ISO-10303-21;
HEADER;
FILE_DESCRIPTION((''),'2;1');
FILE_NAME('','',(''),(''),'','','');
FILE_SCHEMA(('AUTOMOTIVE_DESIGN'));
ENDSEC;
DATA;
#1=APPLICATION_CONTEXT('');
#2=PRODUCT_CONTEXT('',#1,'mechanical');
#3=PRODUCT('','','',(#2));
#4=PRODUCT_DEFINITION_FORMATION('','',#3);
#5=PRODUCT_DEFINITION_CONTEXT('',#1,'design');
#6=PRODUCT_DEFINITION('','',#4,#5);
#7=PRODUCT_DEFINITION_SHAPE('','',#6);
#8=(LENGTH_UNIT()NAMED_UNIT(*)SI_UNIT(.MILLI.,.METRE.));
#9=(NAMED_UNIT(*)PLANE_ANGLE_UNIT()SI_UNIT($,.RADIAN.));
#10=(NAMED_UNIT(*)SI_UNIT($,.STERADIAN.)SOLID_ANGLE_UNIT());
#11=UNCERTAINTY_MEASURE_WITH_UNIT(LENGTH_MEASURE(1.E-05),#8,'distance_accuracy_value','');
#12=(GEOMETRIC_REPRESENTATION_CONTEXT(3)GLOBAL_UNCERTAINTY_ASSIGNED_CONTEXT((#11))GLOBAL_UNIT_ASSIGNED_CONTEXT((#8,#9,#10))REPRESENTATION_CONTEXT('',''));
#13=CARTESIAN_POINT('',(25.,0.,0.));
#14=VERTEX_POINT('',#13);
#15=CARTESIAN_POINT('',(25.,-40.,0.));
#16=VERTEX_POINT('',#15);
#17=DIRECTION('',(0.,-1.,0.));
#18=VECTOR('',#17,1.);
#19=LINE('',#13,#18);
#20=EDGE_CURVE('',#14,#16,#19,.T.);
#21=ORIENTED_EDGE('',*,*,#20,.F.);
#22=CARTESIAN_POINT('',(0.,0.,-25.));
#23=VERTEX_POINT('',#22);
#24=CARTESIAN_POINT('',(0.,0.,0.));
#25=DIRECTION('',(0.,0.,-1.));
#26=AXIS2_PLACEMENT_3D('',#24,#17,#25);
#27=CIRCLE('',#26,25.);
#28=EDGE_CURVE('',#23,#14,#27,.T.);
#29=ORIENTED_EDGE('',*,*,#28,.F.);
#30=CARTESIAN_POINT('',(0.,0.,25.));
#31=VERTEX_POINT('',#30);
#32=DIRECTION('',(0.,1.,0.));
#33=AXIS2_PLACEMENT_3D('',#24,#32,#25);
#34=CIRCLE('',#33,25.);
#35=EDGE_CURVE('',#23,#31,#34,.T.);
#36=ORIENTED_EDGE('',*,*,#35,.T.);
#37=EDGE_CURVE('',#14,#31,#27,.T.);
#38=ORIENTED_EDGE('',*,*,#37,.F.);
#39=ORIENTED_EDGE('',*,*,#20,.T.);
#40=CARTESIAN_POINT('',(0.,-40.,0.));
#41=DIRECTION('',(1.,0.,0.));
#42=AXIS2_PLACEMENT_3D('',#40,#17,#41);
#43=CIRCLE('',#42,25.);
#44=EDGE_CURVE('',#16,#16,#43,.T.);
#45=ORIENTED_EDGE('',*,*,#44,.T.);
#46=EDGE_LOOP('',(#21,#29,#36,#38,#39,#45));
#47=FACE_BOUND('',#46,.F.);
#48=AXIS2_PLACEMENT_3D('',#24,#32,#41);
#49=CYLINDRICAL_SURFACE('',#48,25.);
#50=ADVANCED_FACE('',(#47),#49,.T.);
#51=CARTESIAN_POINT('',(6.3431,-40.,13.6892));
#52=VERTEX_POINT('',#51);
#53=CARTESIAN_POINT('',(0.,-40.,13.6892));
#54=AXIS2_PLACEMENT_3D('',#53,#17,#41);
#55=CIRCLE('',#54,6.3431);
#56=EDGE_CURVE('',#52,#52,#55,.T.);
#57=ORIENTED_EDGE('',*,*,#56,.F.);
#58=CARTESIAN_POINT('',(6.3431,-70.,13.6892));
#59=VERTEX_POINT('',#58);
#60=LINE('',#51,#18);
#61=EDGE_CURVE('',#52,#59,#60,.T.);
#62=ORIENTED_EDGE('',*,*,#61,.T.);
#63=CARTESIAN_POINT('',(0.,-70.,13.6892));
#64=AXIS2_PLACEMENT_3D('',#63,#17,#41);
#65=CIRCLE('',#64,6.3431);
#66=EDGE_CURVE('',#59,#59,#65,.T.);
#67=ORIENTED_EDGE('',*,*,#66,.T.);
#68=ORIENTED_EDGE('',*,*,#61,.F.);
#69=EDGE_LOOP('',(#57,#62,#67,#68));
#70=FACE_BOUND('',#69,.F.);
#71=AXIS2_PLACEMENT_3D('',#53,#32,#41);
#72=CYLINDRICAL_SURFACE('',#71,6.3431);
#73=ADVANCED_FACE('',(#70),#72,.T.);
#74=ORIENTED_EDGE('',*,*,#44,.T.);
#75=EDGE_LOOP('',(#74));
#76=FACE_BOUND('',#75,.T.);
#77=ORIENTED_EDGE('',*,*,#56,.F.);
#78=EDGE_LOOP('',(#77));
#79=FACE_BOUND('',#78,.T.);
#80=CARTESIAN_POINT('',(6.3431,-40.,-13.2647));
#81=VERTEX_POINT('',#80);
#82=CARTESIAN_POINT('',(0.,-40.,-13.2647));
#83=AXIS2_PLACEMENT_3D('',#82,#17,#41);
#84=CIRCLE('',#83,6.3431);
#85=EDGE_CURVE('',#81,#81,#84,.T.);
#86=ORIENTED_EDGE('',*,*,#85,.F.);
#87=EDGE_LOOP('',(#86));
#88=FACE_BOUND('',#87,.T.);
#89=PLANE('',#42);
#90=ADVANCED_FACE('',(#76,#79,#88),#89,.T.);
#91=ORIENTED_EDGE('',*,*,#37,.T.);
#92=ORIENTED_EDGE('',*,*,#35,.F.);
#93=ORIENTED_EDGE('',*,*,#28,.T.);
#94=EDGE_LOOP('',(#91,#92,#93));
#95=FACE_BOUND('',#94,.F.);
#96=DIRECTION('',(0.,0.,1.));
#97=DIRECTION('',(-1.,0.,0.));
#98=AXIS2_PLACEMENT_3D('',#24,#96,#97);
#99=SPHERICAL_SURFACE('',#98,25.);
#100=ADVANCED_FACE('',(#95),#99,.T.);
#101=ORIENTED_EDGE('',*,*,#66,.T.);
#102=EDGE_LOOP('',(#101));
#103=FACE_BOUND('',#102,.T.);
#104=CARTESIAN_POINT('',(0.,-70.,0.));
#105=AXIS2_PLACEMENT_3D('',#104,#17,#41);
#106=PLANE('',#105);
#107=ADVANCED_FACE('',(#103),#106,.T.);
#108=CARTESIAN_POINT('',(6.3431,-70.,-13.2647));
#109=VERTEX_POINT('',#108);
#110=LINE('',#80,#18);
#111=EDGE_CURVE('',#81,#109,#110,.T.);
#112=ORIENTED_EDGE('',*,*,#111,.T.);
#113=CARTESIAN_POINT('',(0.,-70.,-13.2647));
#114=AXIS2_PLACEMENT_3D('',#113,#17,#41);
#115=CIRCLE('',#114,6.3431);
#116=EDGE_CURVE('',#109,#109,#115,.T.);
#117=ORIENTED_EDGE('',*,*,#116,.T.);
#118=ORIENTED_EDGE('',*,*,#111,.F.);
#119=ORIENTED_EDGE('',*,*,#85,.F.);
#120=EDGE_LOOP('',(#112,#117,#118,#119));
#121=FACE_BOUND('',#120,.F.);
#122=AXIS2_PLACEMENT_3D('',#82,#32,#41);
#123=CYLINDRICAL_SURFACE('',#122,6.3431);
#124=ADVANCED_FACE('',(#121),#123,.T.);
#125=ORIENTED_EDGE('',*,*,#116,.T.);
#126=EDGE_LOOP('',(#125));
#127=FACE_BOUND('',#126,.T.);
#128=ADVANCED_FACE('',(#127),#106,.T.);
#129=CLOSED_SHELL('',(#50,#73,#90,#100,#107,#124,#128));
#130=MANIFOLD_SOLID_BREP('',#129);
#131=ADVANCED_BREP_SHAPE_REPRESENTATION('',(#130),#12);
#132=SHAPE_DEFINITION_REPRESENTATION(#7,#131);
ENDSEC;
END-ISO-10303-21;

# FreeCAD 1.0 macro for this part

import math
import FreeCAD as App
import Part
import Sketcher
from FreeCAD import Vector
Q = App.Units.Quantity

doc = App.newDocument("Part")
params = doc.addObject("Spreadsheet::Sheet", "Params")
for row, (alias, value) in enumerate([
    ("sketch1_radius", "25 mm"),
    ("revolution_angle", "180 deg"),
    ("sketch2_diameter", "50 mm"),
    ("pad1_length", "40 mm"),
    ("pad2_length", "30 mm"),
], start=1):
    params.set(f"A{row}", alias)
    params.set(f"B{row}", "=" + value)
    params.setAlias(f"B{row}", alias)

body = doc.addObject("PartDesign::Body", "Body")

sketch1 = doc.addObject("Sketcher::SketchObject", "Sketch")
body.addObject(sketch1)
sketch1.AttachmentSupport = (doc.XZ_Plane, [""])
sketch1.MapMode = "FlatFace"
sketch1.addGeometry(Part.LineSegment(Vector(0, 25, 0), Vector(0, -25, 0)), False)
sketch1.addGeometry(Part.ArcOfCircle(Part.Circle(Vector(0, 0, 0), Vector(0, 0, 1), 25), math.radians(90), math.radians(270)), False)
sketch1.addConstraint(Sketcher.Constraint("Coincident", 0, 1, 1, 1))
sketch1.addConstraint(Sketcher.Constraint("Coincident", 1, 2, 0, 2))
sketch1.addConstraint(Sketcher.Constraint("Vertical", 0))
sketch1.addConstraint(Sketcher.Constraint("Coincident", 1, 3, -1, 1))
sketch1.addConstraint(Sketcher.Constraint("PointOnObject", 0, 1, -2))
sketch1.addConstraint(Sketcher.Constraint("Radius", 1, Q("25 mm")))
sketch1.setExpression("Constraints[5]", "Params.sketch1_radius")
revolution = doc.addObject("PartDesign::Revolution", "Revolution")
body.addObject(revolution)
revolution.Profile = sketch1
revolution.ReferenceAxis = (sketch1, ["V_Axis"])
revolution.setExpression("Angle", "Params.revolution_angle")
revolution.Reversed = True

sketch2 = doc.addObject("Sketcher::SketchObject", "Sketch001")
body.addObject(sketch2)
sketch2.AttachmentSupport = (doc.XZ_Plane, [""])
sketch2.MapMode = "FlatFace"
sketch2.addGeometry(Part.Circle(Vector(0, 0, 0), Vector(0, 0, 1), 25), False)
sketch2.addConstraint(Sketcher.Constraint("Coincident", 0, 3, -1, 1))
sketch2.addConstraint(Sketcher.Constraint("Diameter", 0, Q("50 mm")))
sketch2.setExpression("Constraints[1]", "Params.sketch2_diameter")
pad1 = doc.addObject("PartDesign::Pad", "Pad")
body.addObject(pad1)
pad1.Profile = sketch2
pad1.setExpression("Length", "Params.pad1_length")

sketch3 = doc.addObject("Sketcher::SketchObject", "Sketch002")
body.addObject(sketch3)
sketch3.AttachmentSupport = (doc.XZ_Plane, [""])
sketch3.MapMode = "FlatFace"
sketch3.AttachmentOffset = App.Placement(Vector(0, 0, 40), App.Rotation())
sketch3.addGeometry(Part.Circle(Vector(0, 14, 0), Vector(0, 0, 1), 6), False)
sketch3.addGeometry(Part.Circle(Vector(0, -13, 0), Vector(0, 0, 1), 6), False)
sketch3.addConstraint(Sketcher.Constraint("Equal", 0, 1))
sketch3.addConstraint(Sketcher.Constraint("PointOnObject", 0, 3, -2))
sketch3.addConstraint(Sketcher.Constraint("PointOnObject", 1, 3, -2))
sketch3.addConstraint(Sketcher.Constraint("Diameter", 0, Q("12.6862 mm")))
sketch3.addConstraint(Sketcher.Constraint("DistanceY", 1, 3, 0, 3, Q("26.954 mm")))
sketch3.addConstraint(Sketcher.Constraint("DistanceY", -1, 1, 0, 3, Q("13.6892 mm")))
pad2 = doc.addObject("PartDesign::Pad", "Pad001")
body.addObject(pad2)
pad2.Profile = sketch3
pad2.setExpression("Length", "Params.pad2_length")

doc.recompute()
